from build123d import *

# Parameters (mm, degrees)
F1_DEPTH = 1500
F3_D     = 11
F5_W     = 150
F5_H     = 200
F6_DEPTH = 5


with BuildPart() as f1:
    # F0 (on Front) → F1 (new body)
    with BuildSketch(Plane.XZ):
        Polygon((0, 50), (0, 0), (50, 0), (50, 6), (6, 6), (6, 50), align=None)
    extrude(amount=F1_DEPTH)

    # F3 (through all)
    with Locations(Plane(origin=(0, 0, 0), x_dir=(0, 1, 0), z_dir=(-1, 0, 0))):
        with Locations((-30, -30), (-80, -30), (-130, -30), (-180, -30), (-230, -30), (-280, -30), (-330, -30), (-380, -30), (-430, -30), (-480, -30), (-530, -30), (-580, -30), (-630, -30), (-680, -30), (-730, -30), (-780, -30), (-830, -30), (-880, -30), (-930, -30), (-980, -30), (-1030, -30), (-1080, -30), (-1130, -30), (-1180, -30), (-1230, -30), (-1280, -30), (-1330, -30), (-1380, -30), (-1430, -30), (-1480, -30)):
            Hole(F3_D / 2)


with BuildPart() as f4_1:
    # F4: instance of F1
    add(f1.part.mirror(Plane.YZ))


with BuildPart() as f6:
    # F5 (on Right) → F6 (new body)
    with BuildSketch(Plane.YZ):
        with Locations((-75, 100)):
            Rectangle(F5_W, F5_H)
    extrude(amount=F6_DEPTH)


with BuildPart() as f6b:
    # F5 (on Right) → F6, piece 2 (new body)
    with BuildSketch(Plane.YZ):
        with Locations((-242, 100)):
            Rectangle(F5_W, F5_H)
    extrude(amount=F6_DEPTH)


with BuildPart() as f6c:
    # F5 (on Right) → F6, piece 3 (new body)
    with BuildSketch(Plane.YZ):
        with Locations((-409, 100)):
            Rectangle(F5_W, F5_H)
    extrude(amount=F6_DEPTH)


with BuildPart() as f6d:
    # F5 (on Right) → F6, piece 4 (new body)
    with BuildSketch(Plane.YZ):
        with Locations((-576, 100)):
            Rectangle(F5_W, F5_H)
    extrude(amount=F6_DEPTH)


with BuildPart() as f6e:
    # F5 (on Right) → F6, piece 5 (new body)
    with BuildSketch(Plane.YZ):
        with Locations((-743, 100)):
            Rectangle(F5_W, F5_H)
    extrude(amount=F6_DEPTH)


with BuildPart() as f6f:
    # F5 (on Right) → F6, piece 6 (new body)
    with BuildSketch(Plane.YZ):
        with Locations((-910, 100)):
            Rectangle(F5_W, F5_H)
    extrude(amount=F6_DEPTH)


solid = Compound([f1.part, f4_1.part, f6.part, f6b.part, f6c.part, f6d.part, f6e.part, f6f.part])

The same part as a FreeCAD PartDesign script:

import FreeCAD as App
import Part
import Sketcher

V = App.Vector
Q = App.Units.Quantity

doc = App.newDocument("Part")
body = doc.addObject("PartDesign::Body", "Body")

sketch1 = doc.addObject("Sketcher::SketchObject", "Sketch")
body.addObject(sketch1)
sketch1.AttachmentSupport = (doc.XZ_Plane, [""])
sketch1.MapMode = "FlatFace"
sketch1.addGeometry([
    Part.LineSegment(V(0, 50, 0), V(0, 0, 0)),
    Part.LineSegment(V(0, 0, 0), V(50, 0, 0)),
    Part.LineSegment(V(50, 0, 0), V(50, 6, 0)),
    Part.LineSegment(V(50, 6, 0), V(6, 6, 0)),
    Part.LineSegment(V(6, 6, 0), V(6, 50, 0)),
    Part.LineSegment(V(6, 50, 0), V(0, 50, 0)),
], False)
sketch1.addConstraint([
    Sketcher.Constraint("Coincident", 0, 2, 1, 1),
    Sketcher.Constraint("Coincident", 1, 2, 2, 1),
    Sketcher.Constraint("Coincident", 2, 2, 3, 1),
    Sketcher.Constraint("Coincident", 3, 2, 4, 1),
    Sketcher.Constraint("Coincident", 4, 2, 5, 1),
    Sketcher.Constraint("Coincident", 5, 2, 0, 1),
    Sketcher.Constraint("Vertical", 0),
    Sketcher.Constraint("Horizontal", 1),
    Sketcher.Constraint("Vertical", 2),
    Sketcher.Constraint("Horizontal", 3),
    Sketcher.Constraint("Vertical", 4),
    Sketcher.Constraint("Horizontal", 5),
    Sketcher.Constraint("Coincident", 0, 2, -1, 1),
    Sketcher.Constraint("Equal", 1, 0),
    Sketcher.Constraint("Equal", 5, 2),
    Sketcher.Constraint("DistanceX", 1, 1, 1, 2, Q("50 mm")),
    Sketcher.Constraint("DistanceX", 3, 2, 3, 1, Q("44 mm")),
])
pad1 = doc.addObject("PartDesign::Pad", "Pad")
body.addObject(pad1)
pad1.Profile = sketch1
pad1.Length = 1500

sketch2 = doc.addObject("Sketcher::SketchObject", "Sketch001")
body.addObject(sketch2)
sketch2.AttachmentSupport = (doc.YZ_Plane, [""])
sketch2.MapMode = "FlatFace"
sketch2.addGeometry([
    Part.Circle(V(-30, 30, 0), V(0, 0, 1), 5.5),
    Part.Circle(V(-80, 30, 0), V(0, 0, 1), 5.5),
    Part.Circle(V(-130, 30, 0), V(0, 0, 1), 5.5),
    Part.Circle(V(-180, 30, 0), V(0, 0, 1), 5.5),
    Part.Circle(V(-230, 30, 0), V(0, 0, 1), 5.5),
    Part.Circle(V(-280, 30, 0), V(0, 0, 1), 5.5),
    Part.Circle(V(-330, 30, 0), V(0, 0, 1), 5.5),
    Part.Circle(V(-380, 30, 0), V(0, 0, 1), 5.5),
    Part.Circle(V(-430, 30, 0), V(0, 0, 1), 5.5),
    Part.Circle(V(-480, 30, 0), V(0, 0, 1), 5.5),
    Part.Circle(V(-530, 30, 0), V(0, 0, 1), 5.5),
    Part.Circle(V(-580, 30, 0), V(0, 0, 1), 5.5),
    Part.Circle(V(-630, 30, 0), V(0, 0, 1), 5.5),
    Part.Circle(V(-680, 30, 0), V(0, 0, 1), 5.5),
    Part.Circle(V(-730, 30, 0), V(0, 0, 1), 5.5),
    Part.Circle(V(-780, 30, 0), V(0, 0, 1), 5.5),
    Part.Circle(V(-830, 30, 0), V(0, 0, 1), 5.5),
    Part.Circle(V(-880, 30, 0), V(0, 0, 1), 5.5),
    Part.Circle(V(-930, 30, 0), V(0, 0, 1), 5.5),
    Part.Circle(V(-980, 30, 0), V(0, 0, 1), 5.5),
    Part.Circle(V(-1030, 30, 0), V(0, 0, 1), 5.5),
    Part.Circle(V(-1080, 30, 0), V(0, 0, 1), 5.5),
    Part.Circle(V(-1130, 30, 0), V(0, 0, 1), 5.5),
    Part.Circle(V(-1180, 30, 0), V(0, 0, 1), 5.5),
    Part.Circle(V(-1230, 30, 0), V(0, 0, 1), 5.5),
    Part.Circle(V(-1280, 30, 0), V(0, 0, 1), 5.5),
    Part.Circle(V(-1330, 30, 0), V(0, 0, 1), 5.5),
    Part.Circle(V(-1380, 30, 0), V(0, 0, 1), 5.5),
    Part.Circle(V(-1430, 30, 0), V(0, 0, 1), 5.5),
    Part.Circle(V(-1480, 30, 0), V(0, 0, 1), 5.5),
], False)
sketch2.addConstraint([
    Sketcher.Constraint("Equal", 0, 1),
    Sketcher.Constraint("Equal", 1, 2),
    Sketcher.Constraint("Equal", 2, 3),
    Sketcher.Constraint("Equal", 3, 4),
    Sketcher.Constraint("Equal", 4, 5),
    Sketcher.Constraint("Equal", 5, 6),
    Sketcher.Constraint("Equal", 6, 7),
    Sketcher.Constraint("Equal", 7, 8),
    Sketcher.Constraint("Equal", 8, 9),
    Sketcher.Constraint("Equal", 9, 10),
    Sketcher.Constraint("Equal", 10, 11),
    Sketcher.Constraint("Equal", 11, 12),
    Sketcher.Constraint("Equal", 12, 13),
    Sketcher.Constraint("Equal", 13, 14),
    Sketcher.Constraint("Equal", 14, 15),
    Sketcher.Constraint("Equal", 15, 16),
    Sketcher.Constraint("Equal", 16, 17),
    Sketcher.Constraint("Equal", 17, 18),
    Sketcher.Constraint("Equal", 18, 19),
    Sketcher.Constraint("Equal", 19, 20),
    Sketcher.Constraint("Equal", 20, 21),
    Sketcher.Constraint("Equal", 21, 22),
    Sketcher.Constraint("Equal", 22, 23),
    Sketcher.Constraint("Equal", 23, 24),
    Sketcher.Constraint("Equal", 24, 25),
    Sketcher.Constraint("Equal", 25, 26),
    Sketcher.Constraint("Equal", 26, 27),
    Sketcher.Constraint("Equal", 27, 28),
    Sketcher.Constraint("Equal", 28, 29),
    Sketcher.Constraint("Horizontal", 0, 3, 1, 3),
    Sketcher.Constraint("Horizontal", 1, 3, 2, 3),
    Sketcher.Constraint("Horizontal", 2, 3, 3, 3),
    Sketcher.Constraint("Horizontal", 3, 3, 4, 3),
    Sketcher.Constraint("Horizontal", 4, 3, 5, 3),
    Sketcher.Constraint("Horizontal", 5, 3, 6, 3),
    Sketcher.Constraint("Horizontal", 6, 3, 7, 3),
    Sketcher.Constraint("Horizontal", 7, 3, 8, 3),
    Sketcher.Constraint("Horizontal", 8, 3, 9, 3),
    Sketcher.Constraint("Horizontal", 9, 3, 10, 3),
    Sketcher.Constraint("Horizontal", 10, 3, 11, 3),
    Sketcher.Constraint("Horizontal", 11, 3, 12, 3),
    Sketcher.Constraint("Horizontal", 12, 3, 13, 3),
    Sketcher.Constraint("Horizontal", 13, 3, 14, 3),
    Sketcher.Constraint("Horizontal", 14, 3, 15, 3),
    Sketcher.Constraint("Horizontal", 15, 3, 16, 3),
    Sketcher.Constraint("Horizontal", 16, 3, 17, 3),
    Sketcher.Constraint("Horizontal", 17, 3, 18, 3),
    Sketcher.Constraint("Horizontal", 18, 3, 19, 3),
    Sketcher.Constraint("Horizontal", 19, 3, 20, 3),
    Sketcher.Constraint("Horizontal", 20, 3, 21, 3),
    Sketcher.Constraint("Horizontal", 21, 3, 22, 3),
    Sketcher.Constraint("Horizontal", 22, 3, 23, 3),
    Sketcher.Constraint("Horizontal", 23, 3, 24, 3),
    Sketcher.Constraint("Horizontal", 24, 3, 25, 3),
    Sketcher.Constraint("Horizontal", 25, 3, 26, 3),
    Sketcher.Constraint("Horizontal", 26, 3, 27, 3),
    Sketcher.Constraint("Horizontal", 27, 3, 28, 3),
    Sketcher.Constraint("Horizontal", 28, 3, 29, 3),
    Sketcher.Constraint("Diameter", 0, Q("11 mm")),
    Sketcher.Constraint("DistanceX", 0, 3, -1, 1, Q("30 mm")),
    Sketcher.Constraint("DistanceY", -1, 1, 0, 3, Q("30 mm")),
    Sketcher.Constraint("DistanceX", 1, 3, -1, 1, Q("80 mm")),
    Sketcher.Constraint("DistanceX", 2, 3, -1, 1, Q("130 mm")),
    Sketcher.Constraint("DistanceX", 3, 3, -1, 1, Q("180 mm")),
    Sketcher.Constraint("DistanceX", 4, 3, -1, 1, Q("230 mm")),
    Sketcher.Constraint("DistanceX", 5, 3, -1, 1, Q("280 mm")),
    Sketcher.Constraint("DistanceX", 6, 3, -1, 1, Q("330 mm")),
    Sketcher.Constraint("DistanceX", 7, 3, -1, 1, Q("380 mm")),
    Sketcher.Constraint("DistanceX", 8, 3, -1, 1, Q("430 mm")),
    Sketcher.Constraint("DistanceX", 9, 3, -1, 1, Q("480 mm")),
    Sketcher.Constraint("DistanceX", 10, 3, -1, 1, Q("530 mm")),
    Sketcher.Constraint("DistanceX", 11, 3, -1, 1, Q("580 mm")),
    Sketcher.Constraint("DistanceX", 12, 3, -1, 1, Q("630 mm")),
    Sketcher.Constraint("DistanceX", 13, 3, -1, 1, Q("680 mm")),
    Sketcher.Constraint("DistanceX", 14, 3, -1, 1, Q("730 mm")),
    Sketcher.Constraint("DistanceX", 15, 3, -1, 1, Q("780 mm")),
    Sketcher.Constraint("DistanceX", 16, 3, -1, 1, Q("830 mm")),
    Sketcher.Constraint("DistanceX", 17, 3, -1, 1, Q("880 mm")),
    Sketcher.Constraint("DistanceX", 18, 3, -1, 1, Q("930 mm")),
    Sketcher.Constraint("DistanceX", 19, 3, -1, 1, Q("980 mm")),
    Sketcher.Constraint("DistanceX", 20, 3, -1, 1, Q("1030 mm")),
    Sketcher.Constraint("DistanceX", 21, 3, -1, 1, Q("1080 mm")),
    Sketcher.Constraint("DistanceX", 22, 3, -1, 1, Q("1130 mm")),
    Sketcher.Constraint("DistanceX", 23, 3, -1, 1, Q("1180 mm")),
    Sketcher.Constraint("DistanceX", 24, 3, -1, 1, Q("1230 mm")),
    Sketcher.Constraint("DistanceX", 25, 3, -1, 1, Q("1280 mm")),
    Sketcher.Constraint("DistanceX", 26, 3, -1, 1, Q("1330 mm")),
    Sketcher.Constraint("DistanceX", 27, 3, -1, 1, Q("1380 mm")),
    Sketcher.Constraint("DistanceX", 28, 3, -1, 1, Q("1430 mm")),
    Sketcher.Constraint("DistanceX", 29, 3, -1, 1, Q("1480 mm")),
])
doc.recompute()
hole = doc.addObject("PartDesign::Hole", "Hole")
body.addObject(hole)
hole.Profile = sketch2
hole.ThreadType = "None"
hole.Diameter = 11
hole.DepthType = "ThroughAll"
hole.Reversed = True
body2 = doc.addObject("PartDesign::Body", "Body001")
doc.recompute()

mirroring = doc.addObject("Part::Mirroring", "Mirroring")
mirroring.Source = body
mirroring.Base = V(0, 0, 0)
mirroring.Normal = V(1, 0, 0)
body2.BaseFeature = mirroring
doc.recompute()
body3 = doc.addObject("PartDesign::Body", "Body002")

sketch3 = doc.addObject("Sketcher::SketchObject", "Sketch002")
body3.addObject(sketch3)
sketch3.AttachmentSupport = (doc.getObject("YZ_Plane002"), [""])
sketch3.MapMode = "FlatFace"
sketch3.addGeometry([
    Part.LineSegment(V(-150, 200, 0), V(-150, 0, 0)),
    Part.LineSegment(V(-150, 0, 0), V(0, 0, 0)),
    Part.LineSegment(V(0, 0, 0), V(0, 200, 0)),
    Part.LineSegment(V(0, 200, 0), V(-150, 200, 0)),
], False)
sketch3.addConstraint([
    Sketcher.Constraint("Coincident", 0, 2, 1, 1),
    Sketcher.Constraint("Coincident", 1, 2, 2, 1),
    Sketcher.Constraint("Coincident", 2, 2, 3, 1),
    Sketcher.Constraint("Coincident", 3, 2, 0, 1),
    Sketcher.Constraint("Vertical", 0),
    Sketcher.Constraint("Horizontal", 1),
    Sketcher.Constraint("Vertical", 2),
    Sketcher.Constraint("Horizontal", 3),
    Sketcher.Constraint("Coincident", 1, 2, -1, 1),
    Sketcher.Constraint("DistanceX", 1, 1, 1, 2, Q("150 mm")),
    Sketcher.Constraint("DistanceY", 0, 2, 0, 1, Q("200 mm")),
])
pad2 = doc.addObject("PartDesign::Pad", "Pad001")
body3.addObject(pad2)
pad2.Profile = sketch3
pad2.Length = 5
body4 = doc.addObject("PartDesign::Body", "Body003")

sketch4 = doc.addObject("Sketcher::SketchObject", "Sketch003")
body4.addObject(sketch4)
sketch4.AttachmentSupport = (doc.getObject("YZ_Plane003"), [""])
sketch4.MapMode = "FlatFace"
sketch4.addGeometry([
    Part.LineSegment(V(-317, 200, 0), V(-317, 0, 0)),
    Part.LineSegment(V(-317, 0, 0), V(-167, 0, 0)),
    Part.LineSegment(V(-167, 0, 0), V(-167, 200, 0)),
    Part.LineSegment(V(-167, 200, 0), V(-317, 200, 0)),
], False)
sketch4.addConstraint([
    Sketcher.Constraint("Coincident", 0, 2, 1, 1),
    Sketcher.Constraint("Coincident", 1, 2, 2, 1),
    Sketcher.Constraint("Coincident", 2, 2, 3, 1),
    Sketcher.Constraint("Coincident", 3, 2, 0, 1),
    Sketcher.Constraint("Vertical", 0),
    Sketcher.Constraint("Horizontal", 1),
    Sketcher.Constraint("Vertical", 2),
    Sketcher.Constraint("Horizontal", 3),
    Sketcher.Constraint("PointOnObject", 0, 2, -1),
    Sketcher.Constraint("DistanceX", 1, 1, 1, 2, Q("150 mm")),
    Sketcher.Constraint("DistanceY", 0, 2, 0, 1, Q("200 mm")),
    Sketcher.Constraint("DistanceX", 0, 2, -1, 1, Q("317 mm")),
])
pad3 = doc.addObject("PartDesign::Pad", "Pad002")
body4.addObject(pad3)
pad3.Profile = sketch4
pad3.Length = 5
body5 = doc.addObject("PartDesign::Body", "Body004")

sketch5 = doc.addObject("Sketcher::SketchObject", "Sketch004")
body5.addObject(sketch5)
sketch5.AttachmentSupport = (doc.getObject("YZ_Plane004"), [""])
sketch5.MapMode = "FlatFace"
sketch5.addGeometry([
    Part.LineSegment(V(-484, 200, 0), V(-484, 0, 0)),
    Part.LineSegment(V(-484, 0, 0), V(-334, 0, 0)),
    Part.LineSegment(V(-334, 0, 0), V(-334, 200, 0)),
    Part.LineSegment(V(-334, 200, 0), V(-484, 200, 0)),
], False)
sketch5.addConstraint([
    Sketcher.Constraint("Coincident", 0, 2, 1, 1),
    Sketcher.Constraint("Coincident", 1, 2, 2, 1),
    Sketcher.Constraint("Coincident", 2, 2, 3, 1),
    Sketcher.Constraint("Coincident", 3, 2, 0, 1),
    Sketcher.Constraint("Vertical", 0),
    Sketcher.Constraint("Horizontal", 1),
    Sketcher.Constraint("Vertical", 2),
    Sketcher.Constraint("Horizontal", 3),
    Sketcher.Constraint("PointOnObject", 0, 2, -1),
    Sketcher.Constraint("DistanceX", 1, 1, 1, 2, Q("150 mm")),
    Sketcher.Constraint("DistanceY", 0, 2, 0, 1, Q("200 mm")),
    Sketcher.Constraint("DistanceX", 0, 2, -1, 1, Q("484 mm")),
])
pad4 = doc.addObject("PartDesign::Pad", "Pad003")
body5.addObject(pad4)
pad4.Profile = sketch5
pad4.Length = 5
body6 = doc.addObject("PartDesign::Body", "Body005")

sketch6 = doc.addObject("Sketcher::SketchObject", "Sketch005")
body6.addObject(sketch6)
sketch6.AttachmentSupport = (doc.getObject("YZ_Plane005"), [""])
sketch6.MapMode = "FlatFace"
sketch6.addGeometry([
    Part.LineSegment(V(-651, 200, 0), V(-651, 0, 0)),
    Part.LineSegment(V(-651, 0, 0), V(-501, 0, 0)),
    Part.LineSegment(V(-501, 0, 0), V(-501, 200, 0)),
    Part.LineSegment(V(-501, 200, 0), V(-651, 200, 0)),
], False)
sketch6.addConstraint([
    Sketcher.Constraint("Coincident", 0, 2, 1, 1),
    Sketcher.Constraint("Coincident", 1, 2, 2, 1),
    Sketcher.Constraint("Coincident", 2, 2, 3, 1),
    Sketcher.Constraint("Coincident", 3, 2, 0, 1),
    Sketcher.Constraint("Vertical", 0),
    Sketcher.Constraint("Horizontal", 1),
    Sketcher.Constraint("Vertical", 2),
    Sketcher.Constraint("Horizontal", 3),
    Sketcher.Constraint("PointOnObject", 0, 2, -1),
    Sketcher.Constraint("DistanceX", 1, 1, 1, 2, Q("150 mm")),
    Sketcher.Constraint("DistanceY", 0, 2, 0, 1, Q("200 mm")),
    Sketcher.Constraint("DistanceX", 0, 2, -1, 1, Q("651 mm")),
])
pad5 = doc.addObject("PartDesign::Pad", "Pad004")
body6.addObject(pad5)
pad5.Profile = sketch6
pad5.Length = 5
body7 = doc.addObject("PartDesign::Body", "Body006")

sketch7 = doc.addObject("Sketcher::SketchObject", "Sketch006")
body7.addObject(sketch7)
sketch7.AttachmentSupport = (doc.getObject("YZ_Plane006"), [""])
sketch7.MapMode = "FlatFace"
sketch7.addGeometry([
    Part.LineSegment(V(-818, 200, 0), V(-818, 0, 0)),
    Part.LineSegment(V(-818, 0, 0), V(-668, 0, 0)),
    Part.LineSegment(V(-668, 0, 0), V(-668, 200, 0)),
    Part.LineSegment(V(-668, 200, 0), V(-818, 200, 0)),
], False)
sketch7.addConstraint([
    Sketcher.Constraint("Coincident", 0, 2, 1, 1),
    Sketcher.Constraint("Coincident", 1, 2, 2, 1),
    Sketcher.Constraint("Coincident", 2, 2, 3, 1),
    Sketcher.Constraint("Coincident", 3, 2, 0, 1),
    Sketcher.Constraint("Vertical", 0),
    Sketcher.Constraint("Horizontal", 1),
    Sketcher.Constraint("Vertical", 2),
    Sketcher.Constraint("Horizontal", 3),
    Sketcher.Constraint("PointOnObject", 0, 2, -1),
    Sketcher.Constraint("DistanceX", 1, 1, 1, 2, Q("150 mm")),
    Sketcher.Constraint("DistanceY", 0, 2, 0, 1, Q("200 mm")),
    Sketcher.Constraint("DistanceX", 0, 2, -1, 1, Q("818 mm")),
])
pad6 = doc.addObject("PartDesign::Pad", "Pad005")
body7.addObject(pad6)
pad6.Profile = sketch7
pad6.Length = 5
body8 = doc.addObject("PartDesign::Body", "Body007")

sketch8 = doc.addObject("Sketcher::SketchObject", "Sketch007")
body8.addObject(sketch8)
sketch8.AttachmentSupport = (doc.getObject("YZ_Plane007"), [""])
sketch8.MapMode = "FlatFace"
sketch8.addGeometry([
    Part.LineSegment(V(-985, 200, 0), V(-985, 0, 0)),
    Part.LineSegment(V(-985, 0, 0), V(-835, 0, 0)),
    Part.LineSegment(V(-835, 0, 0), V(-835, 200, 0)),
    Part.LineSegment(V(-835, 200, 0), V(-985, 200, 0)),
], False)
sketch8.addConstraint([
    Sketcher.Constraint("Coincident", 0, 2, 1, 1),
    Sketcher.Constraint("Coincident", 1, 2, 2, 1),
    Sketcher.Constraint("Coincident", 2, 2, 3, 1),
    Sketcher.Constraint("Coincident", 3, 2, 0, 1),
    Sketcher.Constraint("Vertical", 0),
    Sketcher.Constraint("Horizontal", 1),
    Sketcher.Constraint("Vertical", 2),
    Sketcher.Constraint("Horizontal", 3),
    Sketcher.Constraint("PointOnObject", 0, 2, -1),
    Sketcher.Constraint("DistanceX", 1, 1, 1, 2, Q("150 mm")),
    Sketcher.Constraint("DistanceY", 0, 2, 0, 1, Q("200 mm")),
    Sketcher.Constraint("DistanceX", 0, 2, -1, 1, Q("985 mm")),
])
pad7 = doc.addObject("PartDesign::Pad", "Pad006")
body8.addObject(pad7)
pad7.Profile = sketch8
pad7.Length = 5
mirroring.Visibility = False

doc.recompute()
